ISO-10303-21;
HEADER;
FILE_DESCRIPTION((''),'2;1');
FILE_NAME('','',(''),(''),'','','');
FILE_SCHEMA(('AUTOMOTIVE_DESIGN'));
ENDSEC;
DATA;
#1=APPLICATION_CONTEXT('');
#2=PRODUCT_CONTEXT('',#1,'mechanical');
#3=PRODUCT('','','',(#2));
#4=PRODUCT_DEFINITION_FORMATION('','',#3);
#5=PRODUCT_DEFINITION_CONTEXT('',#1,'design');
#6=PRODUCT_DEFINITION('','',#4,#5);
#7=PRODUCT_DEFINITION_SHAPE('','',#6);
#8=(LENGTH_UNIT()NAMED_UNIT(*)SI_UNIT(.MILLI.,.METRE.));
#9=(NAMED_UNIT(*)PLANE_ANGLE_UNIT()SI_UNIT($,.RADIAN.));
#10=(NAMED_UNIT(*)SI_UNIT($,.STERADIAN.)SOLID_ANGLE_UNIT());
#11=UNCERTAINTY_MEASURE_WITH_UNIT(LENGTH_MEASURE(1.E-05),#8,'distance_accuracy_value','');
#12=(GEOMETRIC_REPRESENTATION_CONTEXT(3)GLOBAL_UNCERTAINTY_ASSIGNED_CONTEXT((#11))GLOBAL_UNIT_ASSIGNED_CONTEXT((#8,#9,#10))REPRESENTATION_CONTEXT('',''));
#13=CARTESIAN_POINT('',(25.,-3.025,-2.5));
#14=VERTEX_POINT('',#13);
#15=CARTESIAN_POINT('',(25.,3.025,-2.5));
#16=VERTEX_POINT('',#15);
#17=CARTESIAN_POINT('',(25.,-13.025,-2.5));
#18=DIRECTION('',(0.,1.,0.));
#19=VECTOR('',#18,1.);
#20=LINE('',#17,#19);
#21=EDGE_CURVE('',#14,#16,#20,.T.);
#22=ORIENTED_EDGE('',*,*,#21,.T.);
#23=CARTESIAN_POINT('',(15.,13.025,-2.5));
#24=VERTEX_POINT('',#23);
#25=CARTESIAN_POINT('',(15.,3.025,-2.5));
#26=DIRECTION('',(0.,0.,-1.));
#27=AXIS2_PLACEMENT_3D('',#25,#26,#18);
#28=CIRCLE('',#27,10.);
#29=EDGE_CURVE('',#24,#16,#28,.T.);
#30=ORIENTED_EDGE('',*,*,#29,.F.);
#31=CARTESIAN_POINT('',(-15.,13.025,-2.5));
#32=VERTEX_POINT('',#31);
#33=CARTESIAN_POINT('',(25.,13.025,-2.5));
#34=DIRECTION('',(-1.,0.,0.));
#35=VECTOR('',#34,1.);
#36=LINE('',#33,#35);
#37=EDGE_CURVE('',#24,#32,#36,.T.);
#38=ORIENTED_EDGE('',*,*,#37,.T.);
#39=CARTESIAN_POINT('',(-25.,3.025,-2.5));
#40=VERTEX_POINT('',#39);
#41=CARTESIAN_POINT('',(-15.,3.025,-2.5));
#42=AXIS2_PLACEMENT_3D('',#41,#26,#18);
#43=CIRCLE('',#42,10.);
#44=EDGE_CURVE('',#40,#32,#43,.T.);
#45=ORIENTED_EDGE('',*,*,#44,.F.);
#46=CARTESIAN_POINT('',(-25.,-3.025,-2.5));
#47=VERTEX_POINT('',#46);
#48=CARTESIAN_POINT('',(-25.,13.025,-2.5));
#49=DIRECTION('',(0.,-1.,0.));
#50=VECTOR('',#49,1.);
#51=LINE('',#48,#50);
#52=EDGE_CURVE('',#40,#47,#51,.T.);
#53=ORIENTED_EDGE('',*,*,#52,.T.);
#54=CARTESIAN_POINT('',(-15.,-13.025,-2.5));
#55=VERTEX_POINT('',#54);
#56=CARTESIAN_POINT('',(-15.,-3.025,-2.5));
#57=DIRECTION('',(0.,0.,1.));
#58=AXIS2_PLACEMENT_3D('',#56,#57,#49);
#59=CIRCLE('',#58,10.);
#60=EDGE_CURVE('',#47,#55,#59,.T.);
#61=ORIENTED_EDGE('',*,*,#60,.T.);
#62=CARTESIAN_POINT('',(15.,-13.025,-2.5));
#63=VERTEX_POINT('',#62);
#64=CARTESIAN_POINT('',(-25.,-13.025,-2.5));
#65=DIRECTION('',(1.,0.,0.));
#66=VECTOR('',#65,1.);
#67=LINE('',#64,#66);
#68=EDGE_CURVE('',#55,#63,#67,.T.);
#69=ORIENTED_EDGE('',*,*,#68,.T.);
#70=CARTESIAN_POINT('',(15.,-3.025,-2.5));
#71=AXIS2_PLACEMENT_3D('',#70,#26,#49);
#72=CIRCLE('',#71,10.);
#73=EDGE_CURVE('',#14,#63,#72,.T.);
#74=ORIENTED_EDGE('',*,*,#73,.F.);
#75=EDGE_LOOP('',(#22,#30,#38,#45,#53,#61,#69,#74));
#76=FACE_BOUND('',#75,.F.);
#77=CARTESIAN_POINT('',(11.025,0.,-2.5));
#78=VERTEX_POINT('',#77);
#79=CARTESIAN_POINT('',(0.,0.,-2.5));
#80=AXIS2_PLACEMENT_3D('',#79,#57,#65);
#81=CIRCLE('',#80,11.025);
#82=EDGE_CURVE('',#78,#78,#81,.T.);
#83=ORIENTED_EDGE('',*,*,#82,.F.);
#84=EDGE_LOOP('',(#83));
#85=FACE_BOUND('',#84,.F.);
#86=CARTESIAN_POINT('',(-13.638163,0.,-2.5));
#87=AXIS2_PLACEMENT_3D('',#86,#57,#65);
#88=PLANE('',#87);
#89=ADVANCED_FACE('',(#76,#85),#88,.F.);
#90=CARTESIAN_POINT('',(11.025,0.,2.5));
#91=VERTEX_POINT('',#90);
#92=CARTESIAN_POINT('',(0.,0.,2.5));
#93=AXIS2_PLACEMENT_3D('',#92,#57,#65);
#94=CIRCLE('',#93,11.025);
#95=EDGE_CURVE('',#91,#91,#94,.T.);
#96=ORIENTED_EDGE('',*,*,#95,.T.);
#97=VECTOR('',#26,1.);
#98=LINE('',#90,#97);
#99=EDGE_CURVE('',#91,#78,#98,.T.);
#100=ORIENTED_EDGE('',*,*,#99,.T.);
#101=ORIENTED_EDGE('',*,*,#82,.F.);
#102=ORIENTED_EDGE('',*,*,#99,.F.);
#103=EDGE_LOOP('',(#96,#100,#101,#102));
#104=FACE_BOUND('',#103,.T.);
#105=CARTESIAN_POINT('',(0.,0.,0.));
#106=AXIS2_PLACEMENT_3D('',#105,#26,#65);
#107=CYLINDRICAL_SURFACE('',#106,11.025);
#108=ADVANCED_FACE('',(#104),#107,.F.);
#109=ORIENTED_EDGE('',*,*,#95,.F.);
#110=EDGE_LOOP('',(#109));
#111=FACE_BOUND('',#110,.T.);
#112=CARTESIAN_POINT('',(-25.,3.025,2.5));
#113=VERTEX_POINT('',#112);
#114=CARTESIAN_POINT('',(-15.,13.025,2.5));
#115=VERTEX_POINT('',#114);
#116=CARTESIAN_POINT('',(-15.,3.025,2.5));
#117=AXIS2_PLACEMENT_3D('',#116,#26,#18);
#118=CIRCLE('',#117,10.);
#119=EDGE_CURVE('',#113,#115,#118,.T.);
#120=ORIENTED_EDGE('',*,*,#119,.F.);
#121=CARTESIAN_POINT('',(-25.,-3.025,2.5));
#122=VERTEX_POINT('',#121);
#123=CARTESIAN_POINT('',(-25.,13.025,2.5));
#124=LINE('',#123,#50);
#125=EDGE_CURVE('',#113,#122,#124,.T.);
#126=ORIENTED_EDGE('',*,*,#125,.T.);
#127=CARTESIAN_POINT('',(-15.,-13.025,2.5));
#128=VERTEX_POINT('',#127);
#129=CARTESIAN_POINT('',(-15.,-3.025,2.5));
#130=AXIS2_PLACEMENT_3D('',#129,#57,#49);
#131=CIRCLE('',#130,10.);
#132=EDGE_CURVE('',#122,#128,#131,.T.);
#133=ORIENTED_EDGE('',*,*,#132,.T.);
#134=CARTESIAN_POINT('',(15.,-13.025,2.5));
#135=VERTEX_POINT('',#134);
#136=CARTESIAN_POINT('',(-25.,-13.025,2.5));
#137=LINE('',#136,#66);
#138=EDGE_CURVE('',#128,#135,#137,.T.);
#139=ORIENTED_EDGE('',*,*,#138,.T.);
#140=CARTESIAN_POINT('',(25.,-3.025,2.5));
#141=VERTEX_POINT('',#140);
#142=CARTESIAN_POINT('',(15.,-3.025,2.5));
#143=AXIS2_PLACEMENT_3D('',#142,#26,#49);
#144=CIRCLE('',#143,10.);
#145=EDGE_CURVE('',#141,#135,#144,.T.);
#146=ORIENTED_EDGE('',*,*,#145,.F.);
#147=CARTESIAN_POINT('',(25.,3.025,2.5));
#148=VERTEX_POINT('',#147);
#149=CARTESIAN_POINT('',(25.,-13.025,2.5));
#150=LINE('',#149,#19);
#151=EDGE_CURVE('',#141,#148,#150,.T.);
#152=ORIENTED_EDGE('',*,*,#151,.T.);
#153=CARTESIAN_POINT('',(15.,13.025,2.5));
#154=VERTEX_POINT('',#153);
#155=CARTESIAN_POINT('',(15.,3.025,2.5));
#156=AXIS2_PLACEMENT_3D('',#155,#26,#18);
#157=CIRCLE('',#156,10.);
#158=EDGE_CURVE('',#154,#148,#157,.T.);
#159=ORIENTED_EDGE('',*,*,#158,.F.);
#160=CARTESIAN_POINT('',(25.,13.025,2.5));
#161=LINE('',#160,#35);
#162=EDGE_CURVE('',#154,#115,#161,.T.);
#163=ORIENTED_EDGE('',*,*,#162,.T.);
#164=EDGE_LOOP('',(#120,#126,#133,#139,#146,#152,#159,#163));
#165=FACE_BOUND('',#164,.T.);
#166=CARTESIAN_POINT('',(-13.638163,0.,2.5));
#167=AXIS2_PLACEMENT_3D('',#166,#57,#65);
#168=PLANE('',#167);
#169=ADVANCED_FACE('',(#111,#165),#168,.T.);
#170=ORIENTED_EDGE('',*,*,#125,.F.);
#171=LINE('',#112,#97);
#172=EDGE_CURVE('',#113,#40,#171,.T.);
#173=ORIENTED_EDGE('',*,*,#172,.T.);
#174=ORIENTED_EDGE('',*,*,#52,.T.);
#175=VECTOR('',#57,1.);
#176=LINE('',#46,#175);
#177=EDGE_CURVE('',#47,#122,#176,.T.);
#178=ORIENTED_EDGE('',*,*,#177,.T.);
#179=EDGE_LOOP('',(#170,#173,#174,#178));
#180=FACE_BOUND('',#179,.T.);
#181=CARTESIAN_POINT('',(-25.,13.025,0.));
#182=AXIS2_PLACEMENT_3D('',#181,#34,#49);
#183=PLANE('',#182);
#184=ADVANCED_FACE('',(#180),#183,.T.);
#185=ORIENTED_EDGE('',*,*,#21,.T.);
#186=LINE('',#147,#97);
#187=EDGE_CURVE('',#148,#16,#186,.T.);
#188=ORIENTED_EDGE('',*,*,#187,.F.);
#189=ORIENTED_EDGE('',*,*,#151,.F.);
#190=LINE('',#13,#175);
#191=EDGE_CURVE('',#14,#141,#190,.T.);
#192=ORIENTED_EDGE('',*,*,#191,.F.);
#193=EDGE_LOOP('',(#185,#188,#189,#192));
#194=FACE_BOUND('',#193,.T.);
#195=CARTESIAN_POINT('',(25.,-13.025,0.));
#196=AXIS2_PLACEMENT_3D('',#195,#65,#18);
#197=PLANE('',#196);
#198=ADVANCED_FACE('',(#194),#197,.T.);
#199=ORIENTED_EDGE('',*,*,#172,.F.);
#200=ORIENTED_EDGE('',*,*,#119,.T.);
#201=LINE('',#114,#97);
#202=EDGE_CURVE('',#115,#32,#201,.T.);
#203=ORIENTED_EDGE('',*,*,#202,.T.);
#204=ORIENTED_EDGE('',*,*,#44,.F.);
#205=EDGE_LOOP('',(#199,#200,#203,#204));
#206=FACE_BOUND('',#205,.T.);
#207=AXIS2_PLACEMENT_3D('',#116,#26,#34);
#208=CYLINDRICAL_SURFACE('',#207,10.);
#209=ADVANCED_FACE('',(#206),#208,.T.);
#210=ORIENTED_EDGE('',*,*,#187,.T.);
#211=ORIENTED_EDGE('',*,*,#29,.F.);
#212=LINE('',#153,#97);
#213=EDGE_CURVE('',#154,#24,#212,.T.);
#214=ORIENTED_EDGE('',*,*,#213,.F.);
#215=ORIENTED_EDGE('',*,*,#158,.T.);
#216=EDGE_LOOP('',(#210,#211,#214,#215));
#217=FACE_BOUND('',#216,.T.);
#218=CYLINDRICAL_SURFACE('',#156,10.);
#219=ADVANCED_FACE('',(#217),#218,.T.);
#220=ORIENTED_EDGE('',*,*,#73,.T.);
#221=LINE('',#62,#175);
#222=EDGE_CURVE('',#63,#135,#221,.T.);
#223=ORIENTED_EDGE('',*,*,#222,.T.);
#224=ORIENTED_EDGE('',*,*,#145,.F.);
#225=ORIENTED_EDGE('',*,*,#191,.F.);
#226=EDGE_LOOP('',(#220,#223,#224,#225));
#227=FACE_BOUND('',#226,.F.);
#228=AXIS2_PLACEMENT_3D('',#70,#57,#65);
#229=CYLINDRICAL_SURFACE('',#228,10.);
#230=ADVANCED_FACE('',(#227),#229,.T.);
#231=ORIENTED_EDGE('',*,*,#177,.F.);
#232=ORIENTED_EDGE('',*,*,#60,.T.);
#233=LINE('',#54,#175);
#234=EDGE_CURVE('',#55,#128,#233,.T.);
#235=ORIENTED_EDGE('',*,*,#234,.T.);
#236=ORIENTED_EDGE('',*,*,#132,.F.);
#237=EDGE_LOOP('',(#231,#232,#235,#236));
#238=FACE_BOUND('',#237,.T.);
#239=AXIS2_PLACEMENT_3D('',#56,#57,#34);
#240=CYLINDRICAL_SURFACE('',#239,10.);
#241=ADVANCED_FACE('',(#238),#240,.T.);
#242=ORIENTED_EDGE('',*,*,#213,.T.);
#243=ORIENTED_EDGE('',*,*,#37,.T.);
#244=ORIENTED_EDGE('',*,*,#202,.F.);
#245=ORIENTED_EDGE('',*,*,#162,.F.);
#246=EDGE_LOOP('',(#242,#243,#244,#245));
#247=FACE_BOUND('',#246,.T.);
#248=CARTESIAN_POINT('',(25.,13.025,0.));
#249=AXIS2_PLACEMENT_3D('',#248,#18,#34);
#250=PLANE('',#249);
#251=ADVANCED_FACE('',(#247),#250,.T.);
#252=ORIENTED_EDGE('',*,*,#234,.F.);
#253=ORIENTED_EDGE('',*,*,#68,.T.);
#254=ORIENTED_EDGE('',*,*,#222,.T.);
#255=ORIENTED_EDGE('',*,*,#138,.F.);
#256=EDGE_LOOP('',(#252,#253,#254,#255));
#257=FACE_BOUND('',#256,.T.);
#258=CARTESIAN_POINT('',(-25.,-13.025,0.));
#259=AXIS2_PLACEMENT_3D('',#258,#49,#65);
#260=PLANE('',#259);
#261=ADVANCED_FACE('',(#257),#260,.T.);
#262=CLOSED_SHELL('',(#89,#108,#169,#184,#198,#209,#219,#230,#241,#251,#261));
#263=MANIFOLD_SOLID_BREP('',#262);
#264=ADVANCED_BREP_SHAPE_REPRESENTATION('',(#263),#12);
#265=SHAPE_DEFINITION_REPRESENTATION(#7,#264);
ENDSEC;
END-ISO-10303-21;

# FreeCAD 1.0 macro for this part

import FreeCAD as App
import Part
import Sketcher
from FreeCAD import Vector
Q = App.Units.Quantity


def edges_at(feature, points):
    """Names of the edges that pass closest to the given points."""
    edges = feature.Shape.Edges
    near = lambda p: min(range(len(edges)), key=lambda i: edges[i].distToShape(Part.Vertex(*p))[0])
    return sorted({f"Edge{near(p) + 1}" for p in points})


def add_polygon(sketch, points):
    """Adds a closed chain of lines whose ends are joined by coincident constraints."""
    first, n = sketch.GeometryCount, len(points)
    for a, b in zip(points, points[1:] + points[:1]):
        sketch.addGeometry(Part.LineSegment(App.Vector(*a, 0), App.Vector(*b, 0)), False)
    for i in range(n):
        sketch.addConstraint(Sketcher.Constraint("Coincident", first + i, 2, first + (i + 1) % n, 1))

doc = App.newDocument("Part")
body = doc.addObject("PartDesign::Body", "Body")

# Sketch on XY plane
sketch1 = body.newObject("Sketcher::SketchObject", "Sketch")
sketch1.AttachmentSupport = (doc.getObject("XY_Plane"), [""])
sketch1.MapMode = "FlatFace"
add_polygon(sketch1, [(-25, 13.025), (-25, -13.025), (25, -13.025), (25, 13.025)])  # lines 0-3
sketch1.addGeometry(Part.Circle(Vector(0, 0, 0), Vector(0, 0, 1), 11.025), False)  # 4
sketch1.addConstraint(Sketcher.Constraint("Vertical", 0))
sketch1.addConstraint(Sketcher.Constraint("Horizontal", 1))
sketch1.addConstraint(Sketcher.Constraint("Vertical", 2))
sketch1.addConstraint(Sketcher.Constraint("Horizontal", 3))
sketch1.addConstraint(Sketcher.Constraint("Coincident", 4, 3, -1, 1))
sketch1.addConstraint(Sketcher.Constraint("Symmetric", 0, 2, 2, 2, -1, 1))
sketch1.addConstraint(Sketcher.Constraint("Diameter", 4, Q("22.05 mm")))
sketch1.addConstraint(Sketcher.Constraint("DistanceX", 1, 1, 1, 2, Q("50 mm")))
sketch1.addConstraint(Sketcher.Constraint("DistanceY", 0, 2, 0, 1, Q("26.05 mm")))
pad1 = body.newObject("PartDesign::Pad", "Pad")
pad1.Profile = sketch1
pad1.Length = 5
pad1.Midplane = True

# Sketch on YZ plane
sketch2 = body.newObject("Sketcher::SketchObject", "Sketch001")
sketch2.AttachmentSupport = (doc.getObject("YZ_Plane"), [""])
sketch2.MapMode = "FlatFace"
sketch2.addGeometry(Part.LineSegment(Vector(6.4, 2.5, 0), Vector(5.430738, 2.5, 0)), False)
sketch2.addGeometry(Part.LineSegment(Vector(5.430738, 2.5, 0), Vector(5.430738, -2.5, 0)), False)
sketch2.addGeometry(Part.LineSegment(Vector(5.430738, -2.5, 0), Vector(6.4, -2.5, 0)), False)
sketch2.addGeometry(Part.BSplineCurve([Vector(6.4, 2.5, 0), Vector(6.199995, 1.666646, 0), Vector(6.3, -0.000021, 0), Vector(6.200005, -1.666687, 0), Vector(6.4, -2.5, 0)], [4, 1, 4], [0, 2.504557, 5.008992], False, 3, [1, 1, 1, 1, 1], False), False)
sketch2.addConstraint(Sketcher.Constraint("Block", 3))
sketch2.addConstraint(Sketcher.Constraint("Coincident", 0, 2, 1, 1))
sketch2.addConstraint(Sketcher.Constraint("Coincident", 1, 2, 2, 1))
sketch2.addConstraint(Sketcher.Constraint("Coincident", 2, 2, 3, 2))
sketch2.addConstraint(Sketcher.Constraint("Coincident", 3, 1, 0, 1))
sketch2.addConstraint(Sketcher.Constraint("Horizontal", 0))
sketch2.addConstraint(Sketcher.Constraint("Vertical", 1))
sketch2.addConstraint(Sketcher.Constraint("Horizontal", 2))
sketch2.addConstraint(Sketcher.Constraint("DistanceX", 0, 2, 0, 1, Q("0.969262 mm")))
groove = body.newObject("PartDesign::Groove", "Groove")
groove.Profile = sketch2
groove.ReferenceAxis = (sketch2, ["V_Axis"])
groove.Angle = 360
doc.recompute()

fillet = body.newObject("PartDesign::Fillet", "Fillet")
fillet.Base = (groove, edges_at(groove, [
    (-25, -13.025, 0),
    (-25, 13.025, 0),
    (25, -13.025, 0),
    (25, 13.025, 0),
]))
fillet.Radius = 10

doc.recompute()
